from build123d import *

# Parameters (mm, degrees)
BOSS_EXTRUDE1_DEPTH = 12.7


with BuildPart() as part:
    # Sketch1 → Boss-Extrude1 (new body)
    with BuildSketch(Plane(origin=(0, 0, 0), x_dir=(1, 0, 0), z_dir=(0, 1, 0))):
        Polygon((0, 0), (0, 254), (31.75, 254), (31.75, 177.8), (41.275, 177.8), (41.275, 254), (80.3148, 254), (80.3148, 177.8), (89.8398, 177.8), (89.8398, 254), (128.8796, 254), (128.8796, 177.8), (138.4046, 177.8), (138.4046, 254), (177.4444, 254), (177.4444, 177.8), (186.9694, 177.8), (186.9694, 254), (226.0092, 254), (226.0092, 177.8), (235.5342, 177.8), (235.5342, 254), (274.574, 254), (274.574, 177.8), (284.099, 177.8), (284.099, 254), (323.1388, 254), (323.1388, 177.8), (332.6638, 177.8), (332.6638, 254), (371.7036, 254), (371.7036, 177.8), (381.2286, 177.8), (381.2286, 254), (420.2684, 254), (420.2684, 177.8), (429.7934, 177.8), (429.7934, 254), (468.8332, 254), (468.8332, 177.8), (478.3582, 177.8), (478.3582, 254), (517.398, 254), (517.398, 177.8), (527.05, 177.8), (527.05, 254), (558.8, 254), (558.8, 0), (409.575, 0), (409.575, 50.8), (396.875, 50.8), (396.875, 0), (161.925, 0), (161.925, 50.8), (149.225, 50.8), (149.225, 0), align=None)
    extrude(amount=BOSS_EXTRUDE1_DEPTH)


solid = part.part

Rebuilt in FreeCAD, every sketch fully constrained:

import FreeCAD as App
import Part
import Sketcher
Q = App.Units.Quantity


def add_polygon(sketch, points):
    """Adds a closed chain of lines whose ends are joined by coincident constraints."""
    first, n = sketch.GeometryCount, len(points)
    for a, b in zip(points, points[1:] + points[:1]):
        sketch.addGeometry(Part.LineSegment(App.Vector(*a, 0), App.Vector(*b, 0)), False)
    for i in range(n):
        sketch.addConstraint(Sketcher.Constraint("Coincident", first + i, 2, first + (i + 1) % n, 1))

doc = App.newDocument("Part")
body = doc.addObject("PartDesign::Body", "Body")

# Sketch on XZ plane
sketch1 = body.newObject("Sketcher::SketchObject", "Sketch")
sketch1.AttachmentSupport = (doc.getObject("XZ_Plane"), [""])
sketch1.MapMode = "FlatFace"
add_polygon(sketch1, [(0, -254), (0, 0), (149, 0), (149, -51), (162, -51), (162, 0), (397, 0), (397, -51), (410, -51), (410, 0), (559, 0), (559, -254), (527, -254), (527, -178), (517, -178), (517, -254), (478, -254), (478, -178), (469, -178), (469, -254), (430, -254), (430, -178), (420, -178), (420, -254), (381, -254), (381, -178), (372, -178), (372, -254), (333, -254), (333, -178), (323, -178), (323, -254), (284, -254), (284, -178), (275, -178), (275, -254), (236, -254), (236, -178), (226, -178), (226, -254), (187, -254), (187, -178), (177, -178), (177, -254), (138, -254), (138, -178), (129, -178), (129, -254), (90, -254), (90, -178), (80, -178), (80, -254), (41, -254), (41, -178), (32, -178), (32, -254)])  # lines 0-55
sketch1.addConstraint([
    Sketcher.Constraint("Vertical", 0),
    Sketcher.Constraint("Horizontal", 1),
    Sketcher.Constraint("Vertical", 2),
    Sketcher.Constraint("Horizontal", 3),
    Sketcher.Constraint("Vertical", 4),
    Sketcher.Constraint("Horizontal", 5),
    Sketcher.Constraint("Vertical", 6),
    Sketcher.Constraint("Horizontal", 7),
    Sketcher.Constraint("Vertical", 8),
    Sketcher.Constraint("Horizontal", 9),
    Sketcher.Constraint("Vertical", 10),
    Sketcher.Constraint("Horizontal", 11),
    Sketcher.Constraint("Vertical", 12),
    Sketcher.Constraint("Horizontal", 13),
    Sketcher.Constraint("Vertical", 14),
    Sketcher.Constraint("Horizontal", 15),
    Sketcher.Constraint("Vertical", 16),
    Sketcher.Constraint("Horizontal", 17),
    Sketcher.Constraint("Vertical", 18),
    Sketcher.Constraint("Horizontal", 19),
    Sketcher.Constraint("Vertical", 20),
    Sketcher.Constraint("Horizontal", 21),
    Sketcher.Constraint("Vertical", 22),
    Sketcher.Constraint("Horizontal", 23),
    Sketcher.Constraint("Vertical", 24),
    Sketcher.Constraint("Horizontal", 25),
    Sketcher.Constraint("Vertical", 26),
    Sketcher.Constraint("Horizontal", 27),
    Sketcher.Constraint("Vertical", 28),
    Sketcher.Constraint("Horizontal", 29),
    Sketcher.Constraint("Vertical", 30),
    Sketcher.Constraint("Horizontal", 31),
    Sketcher.Constraint("Vertical", 32),
    Sketcher.Constraint("Horizontal", 33),
    Sketcher.Constraint("Vertical", 34),
    Sketcher.Constraint("Horizontal", 35),
    Sketcher.Constraint("Vertical", 36),
    Sketcher.Constraint("Horizontal", 37),
    Sketcher.Constraint("Vertical", 38),
    Sketcher.Constraint("Horizontal", 39),
    Sketcher.Constraint("Vertical", 40),
    Sketcher.Constraint("Horizontal", 41),
    Sketcher.Constraint("Vertical", 42),
    Sketcher.Constraint("Horizontal", 43),
    Sketcher.Constraint("Vertical", 44),
    Sketcher.Constraint("Horizontal", 45),
    Sketcher.Constraint("Vertical", 46),
    Sketcher.Constraint("Horizontal", 47),
    Sketcher.Constraint("Vertical", 48),
    Sketcher.Constraint("Horizontal", 49),
    Sketcher.Constraint("Vertical", 50),
    Sketcher.Constraint("Horizontal", 51),
    Sketcher.Constraint("Vertical", 52),
    Sketcher.Constraint("Horizontal", 53),
    Sketcher.Constraint("Vertical", 54),
    Sketcher.Constraint("Horizontal", 55),
    Sketcher.Constraint("Coincident", 0, 2, -1, 1),
    Sketcher.Constraint("PointOnObject", 4, 2, -1),
    Sketcher.Constraint("PointOnObject", 8, 2, -1),
    Sketcher.Constraint("Horizontal", 3, 2, 6, 2),
    Sketcher.Constraint("Horizontal", 11, 2, 14, 2),
    Sketcher.Constraint("Horizontal", 13, 2, 16, 2),
    Sketcher.Constraint("Horizontal", 15, 2, 18, 2),
    Sketcher.Constraint("Horizontal", 17, 2, 20, 2),
    Sketcher.Constraint("Horizontal", 19, 2, 22, 2),
    Sketcher.Constraint("Horizontal", 21, 2, 24, 2),
    Sketcher.Constraint("Horizontal", 23, 2, 26, 2),
    Sketcher.Constraint("Horizontal", 25, 2, 28, 2),
    Sketcher.Constraint("Horizontal", 27, 2, 30, 2),
    Sketcher.Constraint("Horizontal", 29, 2, 32, 2),
    Sketcher.Constraint("Horizontal", 31, 2, 34, 2),
    Sketcher.Constraint("Horizontal", 33, 2, 36, 2),
    Sketcher.Constraint("Horizontal", 35, 2, 38, 2),
    Sketcher.Constraint("Horizontal", 37, 2, 40, 2),
    Sketcher.Constraint("Horizontal", 39, 2, 42, 2),
    Sketcher.Constraint("Horizontal", 41, 2, 44, 2),
    Sketcher.Constraint("Horizontal", 43, 2, 46, 2),
    Sketcher.Constraint("Horizontal", 45, 2, 48, 2),
    Sketcher.Constraint("Horizontal", 47, 2, 50, 2),
    Sketcher.Constraint("Horizontal", 49, 2, 52, 2),
    Sketcher.Constraint("Horizontal", 51, 2, 54, 2),
    Sketcher.Constraint("Equal", 3, 7),
    Sketcher.Constraint("Equal", 1, 9),
    Sketcher.Constraint("Equal", 15, 19),
    Sketcher.Constraint("Equal", 17, 21),
    Sketcher.Constraint("Equal", 19, 23),
    Sketcher.Constraint("Equal", 21, 25),
    Sketcher.Constraint("Equal", 23, 27),
    Sketcher.Constraint("Equal", 25, 29),
    Sketcher.Constraint("Equal", 27, 31),
    Sketcher.Constraint("Equal", 29, 33),
    Sketcher.Constraint("Equal", 31, 35),
    Sketcher.Constraint("Equal", 33, 37),
    Sketcher.Constraint("Equal", 35, 39),
    Sketcher.Constraint("Equal", 37, 41),
    Sketcher.Constraint("Equal", 39, 43),
    Sketcher.Constraint("Equal", 41, 45),
    Sketcher.Constraint("Equal", 43, 47),
    Sketcher.Constraint("Equal", 45, 49),
    Sketcher.Constraint("Equal", 47, 51),
    Sketcher.Constraint("Equal", 49, 53),
    Sketcher.Constraint("Equal", 11, 55),
    Sketcher.Constraint("DistanceY", 0, 1, 0, 2, Q("10 in")),
    Sketcher.Constraint("DistanceY", 2, 2, 2, 1, Q("2 in")),
    Sketcher.Constraint("DistanceY", 12, 1, 12, 2, Q("3 in")),
    Sketcher.Constraint("DistanceX", 3, 1, 3, 2, Q("0.5 in")),
    Sketcher.Constraint("DistanceX", -1, 1, 9, 2, Q("22 in")),
    Sketcher.Constraint("DistanceX", 5, 1, 5, 2, Q("9.25 in")),
    Sketcher.Constraint("DistanceX", 11, 2, 11, 1, Q("1.25 in")),
    Sketcher.Constraint("DistanceX", 13, 2, 13, 1, Q("0.38 in")),
    Sketcher.Constraint("DistanceX", 15, 2, 15, 1, Q("1.537 in")),
])
pad1 = body.newObject("PartDesign::Pad", "Pad")
pad1.Profile = sketch1
pad1.Length = Q("0.5 in")
pad1.Reversed = True

doc.recompute()
